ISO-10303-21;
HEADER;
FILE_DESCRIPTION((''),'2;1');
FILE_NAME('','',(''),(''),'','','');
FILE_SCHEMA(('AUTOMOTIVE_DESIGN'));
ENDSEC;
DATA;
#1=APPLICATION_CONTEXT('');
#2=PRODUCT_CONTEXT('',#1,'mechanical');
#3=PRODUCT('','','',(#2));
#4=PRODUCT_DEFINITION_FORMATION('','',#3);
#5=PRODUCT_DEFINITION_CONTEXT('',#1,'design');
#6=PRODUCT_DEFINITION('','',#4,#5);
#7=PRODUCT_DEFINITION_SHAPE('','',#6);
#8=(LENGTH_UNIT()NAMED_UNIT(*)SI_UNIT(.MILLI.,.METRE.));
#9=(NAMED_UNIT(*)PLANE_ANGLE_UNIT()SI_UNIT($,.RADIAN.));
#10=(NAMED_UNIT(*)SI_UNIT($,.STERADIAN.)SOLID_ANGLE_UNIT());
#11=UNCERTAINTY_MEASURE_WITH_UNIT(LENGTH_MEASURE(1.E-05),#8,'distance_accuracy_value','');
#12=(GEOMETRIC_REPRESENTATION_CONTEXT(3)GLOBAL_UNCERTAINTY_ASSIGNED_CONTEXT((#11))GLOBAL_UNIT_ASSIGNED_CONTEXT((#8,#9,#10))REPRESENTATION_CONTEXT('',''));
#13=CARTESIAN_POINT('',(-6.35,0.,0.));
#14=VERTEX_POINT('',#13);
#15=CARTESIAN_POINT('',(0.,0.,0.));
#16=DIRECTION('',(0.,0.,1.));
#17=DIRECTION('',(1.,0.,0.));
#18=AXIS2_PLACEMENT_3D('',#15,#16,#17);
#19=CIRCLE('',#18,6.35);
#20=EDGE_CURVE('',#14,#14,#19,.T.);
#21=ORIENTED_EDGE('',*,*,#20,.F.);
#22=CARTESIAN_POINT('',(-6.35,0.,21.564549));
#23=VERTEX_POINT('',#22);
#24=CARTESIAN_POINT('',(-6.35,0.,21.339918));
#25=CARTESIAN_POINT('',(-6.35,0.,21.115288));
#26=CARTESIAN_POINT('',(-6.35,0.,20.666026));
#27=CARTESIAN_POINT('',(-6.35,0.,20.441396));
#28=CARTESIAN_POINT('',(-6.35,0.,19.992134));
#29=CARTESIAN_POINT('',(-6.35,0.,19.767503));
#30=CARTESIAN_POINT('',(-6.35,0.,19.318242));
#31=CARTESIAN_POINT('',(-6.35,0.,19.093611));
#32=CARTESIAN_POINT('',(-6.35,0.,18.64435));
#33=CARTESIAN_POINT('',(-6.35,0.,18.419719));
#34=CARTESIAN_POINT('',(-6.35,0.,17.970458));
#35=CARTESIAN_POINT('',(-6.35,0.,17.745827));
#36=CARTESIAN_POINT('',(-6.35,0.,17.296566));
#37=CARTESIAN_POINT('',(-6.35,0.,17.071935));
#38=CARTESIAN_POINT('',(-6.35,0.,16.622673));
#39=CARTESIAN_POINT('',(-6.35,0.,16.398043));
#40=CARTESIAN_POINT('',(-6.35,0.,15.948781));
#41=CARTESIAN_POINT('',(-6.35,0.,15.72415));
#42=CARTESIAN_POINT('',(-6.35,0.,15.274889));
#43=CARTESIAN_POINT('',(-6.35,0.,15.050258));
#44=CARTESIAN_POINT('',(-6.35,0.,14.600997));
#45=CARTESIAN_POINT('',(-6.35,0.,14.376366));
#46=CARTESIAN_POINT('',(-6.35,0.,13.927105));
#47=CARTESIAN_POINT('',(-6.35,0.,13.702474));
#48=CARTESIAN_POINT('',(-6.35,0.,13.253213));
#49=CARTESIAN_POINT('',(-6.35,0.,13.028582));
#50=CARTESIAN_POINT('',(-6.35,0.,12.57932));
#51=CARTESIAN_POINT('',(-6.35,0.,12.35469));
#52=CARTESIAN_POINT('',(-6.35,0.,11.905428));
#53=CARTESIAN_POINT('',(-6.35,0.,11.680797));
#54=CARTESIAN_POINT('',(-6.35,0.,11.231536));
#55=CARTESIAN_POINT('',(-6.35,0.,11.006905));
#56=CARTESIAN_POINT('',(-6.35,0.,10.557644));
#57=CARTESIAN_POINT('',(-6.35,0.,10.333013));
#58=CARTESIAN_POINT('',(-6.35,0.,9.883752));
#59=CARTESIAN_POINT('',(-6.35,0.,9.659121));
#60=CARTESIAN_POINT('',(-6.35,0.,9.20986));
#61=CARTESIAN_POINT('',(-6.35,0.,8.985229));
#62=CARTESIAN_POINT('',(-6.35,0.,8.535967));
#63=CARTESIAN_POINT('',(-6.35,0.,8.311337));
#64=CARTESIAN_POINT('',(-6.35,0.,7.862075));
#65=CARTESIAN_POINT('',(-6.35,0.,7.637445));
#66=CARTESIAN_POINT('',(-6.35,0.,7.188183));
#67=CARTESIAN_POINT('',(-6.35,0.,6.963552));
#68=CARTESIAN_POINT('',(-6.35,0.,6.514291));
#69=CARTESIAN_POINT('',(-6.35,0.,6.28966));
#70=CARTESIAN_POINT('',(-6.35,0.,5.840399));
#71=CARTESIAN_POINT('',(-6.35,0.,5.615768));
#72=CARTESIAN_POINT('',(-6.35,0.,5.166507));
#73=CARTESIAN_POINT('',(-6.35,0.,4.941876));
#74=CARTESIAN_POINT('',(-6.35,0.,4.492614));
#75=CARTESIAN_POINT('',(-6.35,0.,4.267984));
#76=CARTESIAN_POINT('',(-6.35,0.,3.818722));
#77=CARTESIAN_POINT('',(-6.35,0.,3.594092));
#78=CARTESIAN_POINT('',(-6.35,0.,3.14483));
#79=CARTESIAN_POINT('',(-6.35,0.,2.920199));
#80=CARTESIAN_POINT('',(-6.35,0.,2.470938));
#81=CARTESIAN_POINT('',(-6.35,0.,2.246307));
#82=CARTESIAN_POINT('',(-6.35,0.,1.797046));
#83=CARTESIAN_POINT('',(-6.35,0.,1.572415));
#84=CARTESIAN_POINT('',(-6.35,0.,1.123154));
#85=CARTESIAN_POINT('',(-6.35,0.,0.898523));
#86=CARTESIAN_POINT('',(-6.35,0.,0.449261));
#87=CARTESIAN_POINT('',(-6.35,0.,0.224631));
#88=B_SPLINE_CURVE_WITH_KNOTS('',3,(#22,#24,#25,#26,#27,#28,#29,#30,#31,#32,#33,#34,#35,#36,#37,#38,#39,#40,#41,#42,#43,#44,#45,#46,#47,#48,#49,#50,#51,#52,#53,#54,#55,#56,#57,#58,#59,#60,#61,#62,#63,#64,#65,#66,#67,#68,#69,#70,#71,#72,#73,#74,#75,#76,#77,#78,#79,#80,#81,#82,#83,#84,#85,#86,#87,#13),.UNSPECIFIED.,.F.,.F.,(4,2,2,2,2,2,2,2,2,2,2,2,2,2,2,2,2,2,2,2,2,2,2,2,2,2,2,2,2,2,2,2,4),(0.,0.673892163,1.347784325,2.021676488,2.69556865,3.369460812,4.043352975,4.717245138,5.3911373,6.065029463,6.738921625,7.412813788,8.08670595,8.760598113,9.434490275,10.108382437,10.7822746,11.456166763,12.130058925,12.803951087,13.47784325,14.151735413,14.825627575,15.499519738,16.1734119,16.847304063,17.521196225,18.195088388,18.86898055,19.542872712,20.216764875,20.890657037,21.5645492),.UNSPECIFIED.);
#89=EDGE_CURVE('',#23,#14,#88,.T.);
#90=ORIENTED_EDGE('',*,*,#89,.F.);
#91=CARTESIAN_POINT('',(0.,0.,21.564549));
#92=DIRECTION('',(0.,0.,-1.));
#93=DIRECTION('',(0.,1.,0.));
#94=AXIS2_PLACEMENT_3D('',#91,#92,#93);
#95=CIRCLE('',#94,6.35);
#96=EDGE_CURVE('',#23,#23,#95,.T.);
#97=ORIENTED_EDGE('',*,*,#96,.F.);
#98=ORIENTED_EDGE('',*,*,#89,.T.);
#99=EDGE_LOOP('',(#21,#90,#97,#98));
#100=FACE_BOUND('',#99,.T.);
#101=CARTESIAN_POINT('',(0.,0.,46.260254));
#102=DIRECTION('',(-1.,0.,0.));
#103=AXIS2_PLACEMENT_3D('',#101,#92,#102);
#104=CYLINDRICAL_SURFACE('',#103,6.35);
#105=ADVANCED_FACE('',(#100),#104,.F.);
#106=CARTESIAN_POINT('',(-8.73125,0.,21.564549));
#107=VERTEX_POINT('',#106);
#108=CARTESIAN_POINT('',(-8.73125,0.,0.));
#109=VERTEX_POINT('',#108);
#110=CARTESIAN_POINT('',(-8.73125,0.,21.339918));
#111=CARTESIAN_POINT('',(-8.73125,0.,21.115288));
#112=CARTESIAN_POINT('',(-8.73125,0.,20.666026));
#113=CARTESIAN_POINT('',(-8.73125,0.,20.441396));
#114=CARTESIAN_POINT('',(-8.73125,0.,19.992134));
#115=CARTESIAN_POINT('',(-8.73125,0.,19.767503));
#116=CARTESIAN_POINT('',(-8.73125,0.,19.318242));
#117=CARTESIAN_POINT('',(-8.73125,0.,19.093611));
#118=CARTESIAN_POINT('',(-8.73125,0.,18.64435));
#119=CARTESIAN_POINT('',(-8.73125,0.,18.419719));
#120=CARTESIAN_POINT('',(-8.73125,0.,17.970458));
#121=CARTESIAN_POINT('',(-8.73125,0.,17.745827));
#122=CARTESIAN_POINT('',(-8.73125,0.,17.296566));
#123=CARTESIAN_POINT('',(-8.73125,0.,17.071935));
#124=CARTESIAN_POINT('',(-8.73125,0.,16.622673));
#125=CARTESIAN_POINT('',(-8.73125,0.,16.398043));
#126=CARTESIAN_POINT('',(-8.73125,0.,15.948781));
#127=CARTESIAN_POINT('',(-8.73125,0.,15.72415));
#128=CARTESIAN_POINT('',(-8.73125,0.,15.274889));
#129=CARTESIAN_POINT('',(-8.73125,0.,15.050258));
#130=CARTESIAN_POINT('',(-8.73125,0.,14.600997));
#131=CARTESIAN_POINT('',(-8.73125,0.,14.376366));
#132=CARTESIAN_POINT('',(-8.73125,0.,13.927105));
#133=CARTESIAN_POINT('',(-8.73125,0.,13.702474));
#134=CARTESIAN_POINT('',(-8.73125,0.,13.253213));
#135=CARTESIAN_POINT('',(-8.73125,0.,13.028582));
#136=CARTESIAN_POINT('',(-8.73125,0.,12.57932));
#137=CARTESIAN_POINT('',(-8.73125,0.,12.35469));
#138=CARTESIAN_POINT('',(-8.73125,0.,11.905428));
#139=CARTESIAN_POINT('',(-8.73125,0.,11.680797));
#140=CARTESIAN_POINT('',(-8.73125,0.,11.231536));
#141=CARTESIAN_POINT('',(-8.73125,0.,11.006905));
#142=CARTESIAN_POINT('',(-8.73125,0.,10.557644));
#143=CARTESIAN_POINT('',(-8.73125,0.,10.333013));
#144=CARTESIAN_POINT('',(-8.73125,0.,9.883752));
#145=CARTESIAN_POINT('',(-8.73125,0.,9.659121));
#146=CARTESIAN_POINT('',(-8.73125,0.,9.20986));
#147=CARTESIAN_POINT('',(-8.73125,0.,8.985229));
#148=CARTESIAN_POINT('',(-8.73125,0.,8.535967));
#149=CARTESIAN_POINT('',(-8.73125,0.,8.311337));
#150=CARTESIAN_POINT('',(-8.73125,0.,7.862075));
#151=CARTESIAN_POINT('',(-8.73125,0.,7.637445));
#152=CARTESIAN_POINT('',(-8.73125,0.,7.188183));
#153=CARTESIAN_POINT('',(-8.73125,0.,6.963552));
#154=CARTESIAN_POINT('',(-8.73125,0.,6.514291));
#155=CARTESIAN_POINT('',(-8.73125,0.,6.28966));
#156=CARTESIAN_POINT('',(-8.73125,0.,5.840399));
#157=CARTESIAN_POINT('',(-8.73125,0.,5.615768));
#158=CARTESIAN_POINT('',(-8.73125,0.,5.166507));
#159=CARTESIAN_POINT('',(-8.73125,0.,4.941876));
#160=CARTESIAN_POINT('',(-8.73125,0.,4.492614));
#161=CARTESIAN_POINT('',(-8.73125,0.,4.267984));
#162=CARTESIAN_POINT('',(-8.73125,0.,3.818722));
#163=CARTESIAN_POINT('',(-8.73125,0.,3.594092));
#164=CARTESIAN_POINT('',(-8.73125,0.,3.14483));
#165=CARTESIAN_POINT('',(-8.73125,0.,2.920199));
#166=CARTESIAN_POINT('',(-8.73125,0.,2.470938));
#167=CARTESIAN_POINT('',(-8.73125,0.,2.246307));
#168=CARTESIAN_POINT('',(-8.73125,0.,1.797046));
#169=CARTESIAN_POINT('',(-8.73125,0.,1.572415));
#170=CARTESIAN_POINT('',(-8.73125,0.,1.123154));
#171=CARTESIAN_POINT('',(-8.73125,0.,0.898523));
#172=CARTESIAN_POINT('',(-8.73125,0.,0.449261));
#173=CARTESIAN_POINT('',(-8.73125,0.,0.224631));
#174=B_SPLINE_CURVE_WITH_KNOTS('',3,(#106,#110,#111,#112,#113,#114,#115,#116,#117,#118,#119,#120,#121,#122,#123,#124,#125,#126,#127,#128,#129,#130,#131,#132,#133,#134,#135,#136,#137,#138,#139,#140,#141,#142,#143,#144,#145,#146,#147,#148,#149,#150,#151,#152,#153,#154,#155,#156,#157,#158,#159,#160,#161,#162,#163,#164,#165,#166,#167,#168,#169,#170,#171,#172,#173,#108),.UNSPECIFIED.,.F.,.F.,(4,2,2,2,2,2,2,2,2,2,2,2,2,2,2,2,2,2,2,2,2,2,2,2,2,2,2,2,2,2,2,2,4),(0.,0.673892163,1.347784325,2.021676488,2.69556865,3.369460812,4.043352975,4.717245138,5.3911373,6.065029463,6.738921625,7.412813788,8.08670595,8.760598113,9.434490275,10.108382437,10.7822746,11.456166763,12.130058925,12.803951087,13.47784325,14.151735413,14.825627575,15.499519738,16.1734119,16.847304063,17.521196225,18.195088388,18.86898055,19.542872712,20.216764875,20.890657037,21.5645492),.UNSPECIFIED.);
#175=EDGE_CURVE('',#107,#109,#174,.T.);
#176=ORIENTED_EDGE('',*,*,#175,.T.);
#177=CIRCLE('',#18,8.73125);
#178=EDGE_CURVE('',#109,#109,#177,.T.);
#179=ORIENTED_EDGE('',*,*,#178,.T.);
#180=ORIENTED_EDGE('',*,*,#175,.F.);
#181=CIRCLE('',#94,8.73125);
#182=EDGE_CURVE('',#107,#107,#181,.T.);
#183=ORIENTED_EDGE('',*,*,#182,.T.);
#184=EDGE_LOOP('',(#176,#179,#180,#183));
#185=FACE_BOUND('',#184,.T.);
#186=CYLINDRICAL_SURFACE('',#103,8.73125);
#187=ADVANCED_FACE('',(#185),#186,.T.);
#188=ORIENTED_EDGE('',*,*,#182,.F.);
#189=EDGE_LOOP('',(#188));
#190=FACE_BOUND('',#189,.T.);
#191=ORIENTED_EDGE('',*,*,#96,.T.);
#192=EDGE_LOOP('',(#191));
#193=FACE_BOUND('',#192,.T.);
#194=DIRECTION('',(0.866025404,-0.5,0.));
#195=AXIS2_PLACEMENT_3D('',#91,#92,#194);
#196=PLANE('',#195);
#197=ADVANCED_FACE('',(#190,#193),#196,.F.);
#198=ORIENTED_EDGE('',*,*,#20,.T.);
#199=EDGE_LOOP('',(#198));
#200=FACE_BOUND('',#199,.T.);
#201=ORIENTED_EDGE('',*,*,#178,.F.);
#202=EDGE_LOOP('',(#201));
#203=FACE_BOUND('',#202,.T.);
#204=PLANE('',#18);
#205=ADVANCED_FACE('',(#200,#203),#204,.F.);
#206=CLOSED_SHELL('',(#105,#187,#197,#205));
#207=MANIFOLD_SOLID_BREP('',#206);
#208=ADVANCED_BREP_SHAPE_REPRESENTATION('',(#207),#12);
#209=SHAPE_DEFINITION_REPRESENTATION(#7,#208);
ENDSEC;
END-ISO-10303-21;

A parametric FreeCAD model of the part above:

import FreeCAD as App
import Part
import Sketcher
Q = App.Units.Quantity

doc = App.newDocument("Part")
body = doc.addObject("PartDesign::Body", "Body")

sketch1 = doc.addObject("Sketcher::SketchObject", "Sketch")
body.addObject(sketch1)
sketch1.AttachmentSupport = (doc.XY_Plane, [""])
sketch1.MapMode = "FlatFace"
sketch1.addGeometry([
    Part.Circle(App.Vector(0, 0, 0), App.Vector(0, 0, 1), 8.73125),
    Part.Circle(App.Vector(0, 0, 0), App.Vector(0, 0, 1), 6.35),
], False)
sketch1.addConstraint([
    Sketcher.Constraint("Coincident", 0, 3, -1, 1),
    Sketcher.Constraint("Coincident", 1, 3, -1, 1),
    Sketcher.Constraint("Diameter", 1, Q("0.5 in")),
    Sketcher.Constraint("Diameter", 0, Q("0.6875 in")),
])
pad1 = doc.addObject("PartDesign::Pad", "Pad")
body.addObject(pad1)
pad1.Profile = sketch1
pad1.Length = 21.564549

doc.recompute()
